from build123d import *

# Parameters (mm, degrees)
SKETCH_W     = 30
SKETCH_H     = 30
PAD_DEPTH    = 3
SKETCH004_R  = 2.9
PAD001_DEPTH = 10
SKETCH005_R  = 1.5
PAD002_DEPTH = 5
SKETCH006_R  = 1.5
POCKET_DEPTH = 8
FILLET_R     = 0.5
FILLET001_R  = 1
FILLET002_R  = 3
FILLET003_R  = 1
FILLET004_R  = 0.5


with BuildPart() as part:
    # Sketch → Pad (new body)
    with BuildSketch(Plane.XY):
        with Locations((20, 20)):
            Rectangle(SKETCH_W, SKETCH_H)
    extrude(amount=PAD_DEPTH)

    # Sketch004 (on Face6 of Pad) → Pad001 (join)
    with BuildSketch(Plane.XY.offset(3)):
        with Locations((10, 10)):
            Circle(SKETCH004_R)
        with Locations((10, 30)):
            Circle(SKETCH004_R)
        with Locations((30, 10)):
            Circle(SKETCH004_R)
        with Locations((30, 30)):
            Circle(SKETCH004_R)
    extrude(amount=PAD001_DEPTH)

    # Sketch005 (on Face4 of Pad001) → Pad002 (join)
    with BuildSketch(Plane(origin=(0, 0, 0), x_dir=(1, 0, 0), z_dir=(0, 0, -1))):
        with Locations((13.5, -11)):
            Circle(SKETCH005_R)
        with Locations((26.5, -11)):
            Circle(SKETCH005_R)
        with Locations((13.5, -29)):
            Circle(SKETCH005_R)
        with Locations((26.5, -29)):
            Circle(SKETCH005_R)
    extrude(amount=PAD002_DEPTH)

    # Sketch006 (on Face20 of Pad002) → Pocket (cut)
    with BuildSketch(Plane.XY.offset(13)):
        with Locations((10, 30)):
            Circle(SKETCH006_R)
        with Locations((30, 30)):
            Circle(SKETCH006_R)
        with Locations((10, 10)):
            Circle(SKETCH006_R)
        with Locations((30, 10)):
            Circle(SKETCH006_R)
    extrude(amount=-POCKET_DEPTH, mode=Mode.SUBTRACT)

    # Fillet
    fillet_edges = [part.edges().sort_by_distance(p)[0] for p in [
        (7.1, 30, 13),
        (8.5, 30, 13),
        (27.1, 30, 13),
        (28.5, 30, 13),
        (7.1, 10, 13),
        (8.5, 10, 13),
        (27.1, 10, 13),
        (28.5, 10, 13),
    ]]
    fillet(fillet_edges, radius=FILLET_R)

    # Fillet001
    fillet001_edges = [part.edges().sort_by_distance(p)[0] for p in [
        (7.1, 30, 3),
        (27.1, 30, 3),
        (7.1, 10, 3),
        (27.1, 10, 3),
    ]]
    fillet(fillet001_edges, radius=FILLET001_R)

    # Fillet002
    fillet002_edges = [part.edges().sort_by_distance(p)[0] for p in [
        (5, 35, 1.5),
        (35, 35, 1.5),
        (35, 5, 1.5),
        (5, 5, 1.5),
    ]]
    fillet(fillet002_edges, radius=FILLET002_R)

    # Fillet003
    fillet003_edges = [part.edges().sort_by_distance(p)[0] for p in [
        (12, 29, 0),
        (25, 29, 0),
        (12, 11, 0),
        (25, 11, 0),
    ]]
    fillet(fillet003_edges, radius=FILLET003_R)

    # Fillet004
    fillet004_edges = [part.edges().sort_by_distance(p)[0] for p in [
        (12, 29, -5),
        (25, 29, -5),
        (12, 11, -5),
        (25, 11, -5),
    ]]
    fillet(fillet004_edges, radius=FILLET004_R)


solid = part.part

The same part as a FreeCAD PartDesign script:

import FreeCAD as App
import Part
import Sketcher

V = App.Vector
Q = App.Units.Quantity


def edges_at(feature, points):
    """Names of the edges that pass closest to the given points."""
    edges = feature.Shape.Edges
    near = lambda p: min(range(len(edges)), key=lambda i: edges[i].distToShape(Part.Vertex(*p))[0])
    return sorted({f"Edge{near(p) + 1}" for p in points})


def add_polygon(sketch, points):
    """Adds a closed chain of lines whose ends are joined by coincident constraints."""
    first, n = sketch.GeometryCount, len(points)
    for a, b in zip(points, points[1:] + points[:1]):
        sketch.addGeometry(Part.LineSegment(App.Vector(*a, 0), App.Vector(*b, 0)), False)
    for i in range(n):
        sketch.addConstraint(Sketcher.Constraint("Coincident", first + i, 2, first + (i + 1) % n, 1))

doc = App.newDocument("Part")
params = doc.addObject("Spreadsheet::Sheet", "Params")
for row, (alias, value) in enumerate([
    ("sketch1_width", "30 mm"),
    ("pad1_length", "3 mm"),
    ("sketch2_diameter", "5.8 mm"),
    ("pad2_length", "10 mm"),
    ("sketch3_diameter", "3 mm"),
    ("pad3_length", "5 mm"),
    ("sketch4_diameter", "3 mm"),
    ("pocket1_length", "8 mm"),
    ("fillet_radius", "0.5 mm"),
    ("fillet2_radius", "1 mm"),
    ("fillet3_radius", "3 mm"),
    ("fillet4_radius", "1 mm"),
    ("fillet5_radius", "0.5 mm"),
], start=1):
    params.set(f"A{row}", alias)
    params.set(f"B{row}", "=" + value)
    params.setAlias(f"B{row}", alias)

body = doc.addObject("PartDesign::Body", "Body")

# Sketch on XY plane
sketch1 = doc.addObject("Sketcher::SketchObject", "Sketch")
body.addObject(sketch1)
sketch1.AttachmentSupport = (doc.XY_Plane, [""])
sketch1.MapMode = "FlatFace"
add_polygon(sketch1, [(5, 35), (5, 5), (35, 5), (35, 35)])  # lines 0-3
sketch1.addConstraint([
    Sketcher.Constraint("Vertical", 0),
    Sketcher.Constraint("Horizontal", 1),
    Sketcher.Constraint("Vertical", 2),
    Sketcher.Constraint("Horizontal", 3),
    Sketcher.Constraint("Equal", 3, 0),
    Sketcher.Constraint("DistanceX", 1, 1, 1, 2, Q("30 mm")),
    Sketcher.Constraint("DistanceX", -1, 1, 0, 2, Q("5 mm")),
    Sketcher.Constraint("DistanceY", -1, 1, 0, 2, Q("5 mm")),
])
sketch1.setExpression("Constraints[9]", "Params.sketch1_width")
pad1 = doc.addObject("PartDesign::Pad", "Pad")
body.addObject(pad1)
pad1.Profile = sketch1
pad1.setExpression("Length", "Params.pad1_length")

# Sketch on XY plane
sketch2 = doc.addObject("Sketcher::SketchObject", "Sketch001")
body.addObject(sketch2)
sketch2.AttachmentSupport = (doc.XY_Plane, [""])
sketch2.MapMode = "FlatFace"
sketch2.AttachmentOffset = App.Placement(V(0, 0, 3), App.Rotation())
sketch2.addGeometry([
    Part.Circle(V(10, 10, 0), V(0, 0, 1), 2.9),
    Part.Circle(V(10, 30, 0), V(0, 0, 1), 2.9),
    Part.Circle(V(30, 10, 0), V(0, 0, 1), 2.9),
    Part.Circle(V(30, 30, 0), V(0, 0, 1), 2.9),
], False)
sketch2.addConstraint([
    Sketcher.Constraint("Equal", 0, 1),
    Sketcher.Constraint("Equal", 1, 2),
    Sketcher.Constraint("Equal", 2, 3),
    Sketcher.Constraint("Horizontal", 0, 3, 2, 3),
    Sketcher.Constraint("Horizontal", 1, 3, 3, 3),
    Sketcher.Constraint("Vertical", 0, 3, 1, 3),
    Sketcher.Constraint("Vertical", 2, 3, 3, 3),
    Sketcher.Constraint("Diameter", 0, Q("5.8 mm")),
    Sketcher.Constraint("DistanceX", -1, 1, 0, 3, Q("10 mm")),
    Sketcher.Constraint("DistanceY", -1, 1, 0, 3, Q("10 mm")),
    Sketcher.Constraint("DistanceY", -1, 1, 1, 3, Q("30 mm")),
    Sketcher.Constraint("DistanceX", -1, 1, 2, 3, Q("30 mm")),
])
sketch2.setExpression("Constraints[7]", "Params.sketch2_diameter")
pad2 = doc.addObject("PartDesign::Pad", "Pad001")
body.addObject(pad2)
pad2.Profile = sketch2
pad2.setExpression("Length", "Params.pad2_length")

# Sketch on XY plane
sketch3 = doc.addObject("Sketcher::SketchObject", "Sketch002")
body.addObject(sketch3)
sketch3.AttachmentSupport = (doc.XY_Plane, [""])
sketch3.MapMode = "FlatFace"
sketch3.addGeometry([
    Part.Circle(V(13.5, 11, 0), V(0, 0, 1), 1.5),
    Part.Circle(V(26.5, 11, 0), V(0, 0, 1), 1.5),
    Part.Circle(V(13.5, 29, 0), V(0, 0, 1), 1.5),
    Part.Circle(V(26.5, 29, 0), V(0, 0, 1), 1.5),
], False)
sketch3.addConstraint([
    Sketcher.Constraint("Equal", 0, 1),
    Sketcher.Constraint("Equal", 1, 2),
    Sketcher.Constraint("Equal", 2, 3),
    Sketcher.Constraint("Horizontal", 0, 3, 1, 3),
    Sketcher.Constraint("Horizontal", 2, 3, 3, 3),
    Sketcher.Constraint("Vertical", 0, 3, 2, 3),
    Sketcher.Constraint("Vertical", 1, 3, 3, 3),
    Sketcher.Constraint("Diameter", 0, Q("3 mm")),
    Sketcher.Constraint("DistanceY", -1, 1, 0, 3, Q("11 mm")),
    Sketcher.Constraint("DistanceY", -1, 1, 2, 3, Q("29 mm")),
    Sketcher.Constraint("DistanceX", 0, 3, 1, 3, Q("13 mm")),
    Sketcher.Constraint("DistanceX", -1, 1, 0, 3, Q("13.5 mm")),
])
sketch3.setExpression("Constraints[7]", "Params.sketch3_diameter")
pad3 = doc.addObject("PartDesign::Pad", "Pad002")
body.addObject(pad3)
pad3.Profile = sketch3
pad3.setExpression("Length", "Params.pad3_length")
pad3.Reversed = True

# Sketch on XY plane
sketch4 = doc.addObject("Sketcher::SketchObject", "Sketch003")
body.addObject(sketch4)
sketch4.AttachmentSupport = (doc.XY_Plane, [""])
sketch4.MapMode = "FlatFace"
sketch4.AttachmentOffset = App.Placement(V(0, 0, 13), App.Rotation())
sketch4.addGeometry([
    Part.Circle(V(10, 30, 0), V(0, 0, 1), 1.5),
    Part.Circle(V(30, 30, 0), V(0, 0, 1), 1.5),
    Part.Circle(V(10, 10, 0), V(0, 0, 1), 1.5),
    Part.Circle(V(30, 10, 0), V(0, 0, 1), 1.5),
], False)
sketch4.addConstraint([
    Sketcher.Constraint("Equal", 0, 1),
    Sketcher.Constraint("Equal", 1, 2),
    Sketcher.Constraint("Equal", 2, 3),
    Sketcher.Constraint("Horizontal", 0, 3, 1, 3),
    Sketcher.Constraint("Horizontal", 2, 3, 3, 3),
    Sketcher.Constraint("Vertical", 0, 3, 2, 3),
    Sketcher.Constraint("Vertical", 1, 3, 3, 3),
    Sketcher.Constraint("Diameter", 0, Q("3 mm")),
    Sketcher.Constraint("DistanceX", -1, 1, 0, 3, Q("10 mm")),
    Sketcher.Constraint("DistanceY", -1, 1, 0, 3, Q("30 mm")),
    Sketcher.Constraint("DistanceX", -1, 1, 1, 3, Q("30 mm")),
    Sketcher.Constraint("DistanceY", -1, 1, 2, 3, Q("10 mm")),
])
sketch4.setExpression("Constraints[7]", "Params.sketch4_diameter")
pocket1 = doc.addObject("PartDesign::Pocket", "Pocket")
body.addObject(pocket1)
pocket1.Profile = sketch4
pocket1.setExpression("Length", "Params.pocket1_length")
doc.recompute()

fillet = doc.addObject("PartDesign::Fillet", "Fillet")
body.addObject(fillet)
fillet.Base = (pocket1, edges_at(pocket1, [
    (7.1, 30, 13),
    (8.5, 30, 13),
    (27.1, 30, 13),
    (28.5, 30, 13),
    (7.1, 10, 13),
    (8.5, 10, 13),
    (27.1, 10, 13),
    (28.5, 10, 13),
]))
fillet.setExpression("Radius", "Params.fillet_radius")
doc.recompute()

fillet2 = doc.addObject("PartDesign::Fillet", "Fillet001")
body.addObject(fillet2)
fillet2.Base = (fillet, edges_at(fillet, [
    (7.1, 30, 3),
    (27.1, 30, 3),
    (7.1, 10, 3),
    (27.1, 10, 3),
]))
fillet2.setExpression("Radius", "Params.fillet2_radius")
doc.recompute()

fillet3 = doc.addObject("PartDesign::Fillet", "Fillet002")
body.addObject(fillet3)
fillet3.Base = (fillet2, edges_at(fillet2, [
    (5, 35, 1.5),
    (35, 35, 1.5),
    (35, 5, 1.5),
    (5, 5, 1.5),
]))
fillet3.setExpression("Radius", "Params.fillet3_radius")
doc.recompute()

fillet4 = doc.addObject("PartDesign::Fillet", "Fillet003")
body.addObject(fillet4)
fillet4.Base = (fillet3, edges_at(fillet3, [
    (12, 29, 0),
    (25, 29, 0),
    (12, 11, 0),
    (25, 11, 0),
]))
fillet4.setExpression("Radius", "Params.fillet4_radius")
doc.recompute()

fillet5 = doc.addObject("PartDesign::Fillet", "Fillet004")
body.addObject(fillet5)
fillet5.Base = (fillet4, edges_at(fillet4, [
    (12, 29, -5),
    (25, 29, -5),
    (12, 11, -5),
    (25, 11, -5),
]))
fillet5.setExpression("Radius", "Params.fillet5_radius")

doc.recompute()
